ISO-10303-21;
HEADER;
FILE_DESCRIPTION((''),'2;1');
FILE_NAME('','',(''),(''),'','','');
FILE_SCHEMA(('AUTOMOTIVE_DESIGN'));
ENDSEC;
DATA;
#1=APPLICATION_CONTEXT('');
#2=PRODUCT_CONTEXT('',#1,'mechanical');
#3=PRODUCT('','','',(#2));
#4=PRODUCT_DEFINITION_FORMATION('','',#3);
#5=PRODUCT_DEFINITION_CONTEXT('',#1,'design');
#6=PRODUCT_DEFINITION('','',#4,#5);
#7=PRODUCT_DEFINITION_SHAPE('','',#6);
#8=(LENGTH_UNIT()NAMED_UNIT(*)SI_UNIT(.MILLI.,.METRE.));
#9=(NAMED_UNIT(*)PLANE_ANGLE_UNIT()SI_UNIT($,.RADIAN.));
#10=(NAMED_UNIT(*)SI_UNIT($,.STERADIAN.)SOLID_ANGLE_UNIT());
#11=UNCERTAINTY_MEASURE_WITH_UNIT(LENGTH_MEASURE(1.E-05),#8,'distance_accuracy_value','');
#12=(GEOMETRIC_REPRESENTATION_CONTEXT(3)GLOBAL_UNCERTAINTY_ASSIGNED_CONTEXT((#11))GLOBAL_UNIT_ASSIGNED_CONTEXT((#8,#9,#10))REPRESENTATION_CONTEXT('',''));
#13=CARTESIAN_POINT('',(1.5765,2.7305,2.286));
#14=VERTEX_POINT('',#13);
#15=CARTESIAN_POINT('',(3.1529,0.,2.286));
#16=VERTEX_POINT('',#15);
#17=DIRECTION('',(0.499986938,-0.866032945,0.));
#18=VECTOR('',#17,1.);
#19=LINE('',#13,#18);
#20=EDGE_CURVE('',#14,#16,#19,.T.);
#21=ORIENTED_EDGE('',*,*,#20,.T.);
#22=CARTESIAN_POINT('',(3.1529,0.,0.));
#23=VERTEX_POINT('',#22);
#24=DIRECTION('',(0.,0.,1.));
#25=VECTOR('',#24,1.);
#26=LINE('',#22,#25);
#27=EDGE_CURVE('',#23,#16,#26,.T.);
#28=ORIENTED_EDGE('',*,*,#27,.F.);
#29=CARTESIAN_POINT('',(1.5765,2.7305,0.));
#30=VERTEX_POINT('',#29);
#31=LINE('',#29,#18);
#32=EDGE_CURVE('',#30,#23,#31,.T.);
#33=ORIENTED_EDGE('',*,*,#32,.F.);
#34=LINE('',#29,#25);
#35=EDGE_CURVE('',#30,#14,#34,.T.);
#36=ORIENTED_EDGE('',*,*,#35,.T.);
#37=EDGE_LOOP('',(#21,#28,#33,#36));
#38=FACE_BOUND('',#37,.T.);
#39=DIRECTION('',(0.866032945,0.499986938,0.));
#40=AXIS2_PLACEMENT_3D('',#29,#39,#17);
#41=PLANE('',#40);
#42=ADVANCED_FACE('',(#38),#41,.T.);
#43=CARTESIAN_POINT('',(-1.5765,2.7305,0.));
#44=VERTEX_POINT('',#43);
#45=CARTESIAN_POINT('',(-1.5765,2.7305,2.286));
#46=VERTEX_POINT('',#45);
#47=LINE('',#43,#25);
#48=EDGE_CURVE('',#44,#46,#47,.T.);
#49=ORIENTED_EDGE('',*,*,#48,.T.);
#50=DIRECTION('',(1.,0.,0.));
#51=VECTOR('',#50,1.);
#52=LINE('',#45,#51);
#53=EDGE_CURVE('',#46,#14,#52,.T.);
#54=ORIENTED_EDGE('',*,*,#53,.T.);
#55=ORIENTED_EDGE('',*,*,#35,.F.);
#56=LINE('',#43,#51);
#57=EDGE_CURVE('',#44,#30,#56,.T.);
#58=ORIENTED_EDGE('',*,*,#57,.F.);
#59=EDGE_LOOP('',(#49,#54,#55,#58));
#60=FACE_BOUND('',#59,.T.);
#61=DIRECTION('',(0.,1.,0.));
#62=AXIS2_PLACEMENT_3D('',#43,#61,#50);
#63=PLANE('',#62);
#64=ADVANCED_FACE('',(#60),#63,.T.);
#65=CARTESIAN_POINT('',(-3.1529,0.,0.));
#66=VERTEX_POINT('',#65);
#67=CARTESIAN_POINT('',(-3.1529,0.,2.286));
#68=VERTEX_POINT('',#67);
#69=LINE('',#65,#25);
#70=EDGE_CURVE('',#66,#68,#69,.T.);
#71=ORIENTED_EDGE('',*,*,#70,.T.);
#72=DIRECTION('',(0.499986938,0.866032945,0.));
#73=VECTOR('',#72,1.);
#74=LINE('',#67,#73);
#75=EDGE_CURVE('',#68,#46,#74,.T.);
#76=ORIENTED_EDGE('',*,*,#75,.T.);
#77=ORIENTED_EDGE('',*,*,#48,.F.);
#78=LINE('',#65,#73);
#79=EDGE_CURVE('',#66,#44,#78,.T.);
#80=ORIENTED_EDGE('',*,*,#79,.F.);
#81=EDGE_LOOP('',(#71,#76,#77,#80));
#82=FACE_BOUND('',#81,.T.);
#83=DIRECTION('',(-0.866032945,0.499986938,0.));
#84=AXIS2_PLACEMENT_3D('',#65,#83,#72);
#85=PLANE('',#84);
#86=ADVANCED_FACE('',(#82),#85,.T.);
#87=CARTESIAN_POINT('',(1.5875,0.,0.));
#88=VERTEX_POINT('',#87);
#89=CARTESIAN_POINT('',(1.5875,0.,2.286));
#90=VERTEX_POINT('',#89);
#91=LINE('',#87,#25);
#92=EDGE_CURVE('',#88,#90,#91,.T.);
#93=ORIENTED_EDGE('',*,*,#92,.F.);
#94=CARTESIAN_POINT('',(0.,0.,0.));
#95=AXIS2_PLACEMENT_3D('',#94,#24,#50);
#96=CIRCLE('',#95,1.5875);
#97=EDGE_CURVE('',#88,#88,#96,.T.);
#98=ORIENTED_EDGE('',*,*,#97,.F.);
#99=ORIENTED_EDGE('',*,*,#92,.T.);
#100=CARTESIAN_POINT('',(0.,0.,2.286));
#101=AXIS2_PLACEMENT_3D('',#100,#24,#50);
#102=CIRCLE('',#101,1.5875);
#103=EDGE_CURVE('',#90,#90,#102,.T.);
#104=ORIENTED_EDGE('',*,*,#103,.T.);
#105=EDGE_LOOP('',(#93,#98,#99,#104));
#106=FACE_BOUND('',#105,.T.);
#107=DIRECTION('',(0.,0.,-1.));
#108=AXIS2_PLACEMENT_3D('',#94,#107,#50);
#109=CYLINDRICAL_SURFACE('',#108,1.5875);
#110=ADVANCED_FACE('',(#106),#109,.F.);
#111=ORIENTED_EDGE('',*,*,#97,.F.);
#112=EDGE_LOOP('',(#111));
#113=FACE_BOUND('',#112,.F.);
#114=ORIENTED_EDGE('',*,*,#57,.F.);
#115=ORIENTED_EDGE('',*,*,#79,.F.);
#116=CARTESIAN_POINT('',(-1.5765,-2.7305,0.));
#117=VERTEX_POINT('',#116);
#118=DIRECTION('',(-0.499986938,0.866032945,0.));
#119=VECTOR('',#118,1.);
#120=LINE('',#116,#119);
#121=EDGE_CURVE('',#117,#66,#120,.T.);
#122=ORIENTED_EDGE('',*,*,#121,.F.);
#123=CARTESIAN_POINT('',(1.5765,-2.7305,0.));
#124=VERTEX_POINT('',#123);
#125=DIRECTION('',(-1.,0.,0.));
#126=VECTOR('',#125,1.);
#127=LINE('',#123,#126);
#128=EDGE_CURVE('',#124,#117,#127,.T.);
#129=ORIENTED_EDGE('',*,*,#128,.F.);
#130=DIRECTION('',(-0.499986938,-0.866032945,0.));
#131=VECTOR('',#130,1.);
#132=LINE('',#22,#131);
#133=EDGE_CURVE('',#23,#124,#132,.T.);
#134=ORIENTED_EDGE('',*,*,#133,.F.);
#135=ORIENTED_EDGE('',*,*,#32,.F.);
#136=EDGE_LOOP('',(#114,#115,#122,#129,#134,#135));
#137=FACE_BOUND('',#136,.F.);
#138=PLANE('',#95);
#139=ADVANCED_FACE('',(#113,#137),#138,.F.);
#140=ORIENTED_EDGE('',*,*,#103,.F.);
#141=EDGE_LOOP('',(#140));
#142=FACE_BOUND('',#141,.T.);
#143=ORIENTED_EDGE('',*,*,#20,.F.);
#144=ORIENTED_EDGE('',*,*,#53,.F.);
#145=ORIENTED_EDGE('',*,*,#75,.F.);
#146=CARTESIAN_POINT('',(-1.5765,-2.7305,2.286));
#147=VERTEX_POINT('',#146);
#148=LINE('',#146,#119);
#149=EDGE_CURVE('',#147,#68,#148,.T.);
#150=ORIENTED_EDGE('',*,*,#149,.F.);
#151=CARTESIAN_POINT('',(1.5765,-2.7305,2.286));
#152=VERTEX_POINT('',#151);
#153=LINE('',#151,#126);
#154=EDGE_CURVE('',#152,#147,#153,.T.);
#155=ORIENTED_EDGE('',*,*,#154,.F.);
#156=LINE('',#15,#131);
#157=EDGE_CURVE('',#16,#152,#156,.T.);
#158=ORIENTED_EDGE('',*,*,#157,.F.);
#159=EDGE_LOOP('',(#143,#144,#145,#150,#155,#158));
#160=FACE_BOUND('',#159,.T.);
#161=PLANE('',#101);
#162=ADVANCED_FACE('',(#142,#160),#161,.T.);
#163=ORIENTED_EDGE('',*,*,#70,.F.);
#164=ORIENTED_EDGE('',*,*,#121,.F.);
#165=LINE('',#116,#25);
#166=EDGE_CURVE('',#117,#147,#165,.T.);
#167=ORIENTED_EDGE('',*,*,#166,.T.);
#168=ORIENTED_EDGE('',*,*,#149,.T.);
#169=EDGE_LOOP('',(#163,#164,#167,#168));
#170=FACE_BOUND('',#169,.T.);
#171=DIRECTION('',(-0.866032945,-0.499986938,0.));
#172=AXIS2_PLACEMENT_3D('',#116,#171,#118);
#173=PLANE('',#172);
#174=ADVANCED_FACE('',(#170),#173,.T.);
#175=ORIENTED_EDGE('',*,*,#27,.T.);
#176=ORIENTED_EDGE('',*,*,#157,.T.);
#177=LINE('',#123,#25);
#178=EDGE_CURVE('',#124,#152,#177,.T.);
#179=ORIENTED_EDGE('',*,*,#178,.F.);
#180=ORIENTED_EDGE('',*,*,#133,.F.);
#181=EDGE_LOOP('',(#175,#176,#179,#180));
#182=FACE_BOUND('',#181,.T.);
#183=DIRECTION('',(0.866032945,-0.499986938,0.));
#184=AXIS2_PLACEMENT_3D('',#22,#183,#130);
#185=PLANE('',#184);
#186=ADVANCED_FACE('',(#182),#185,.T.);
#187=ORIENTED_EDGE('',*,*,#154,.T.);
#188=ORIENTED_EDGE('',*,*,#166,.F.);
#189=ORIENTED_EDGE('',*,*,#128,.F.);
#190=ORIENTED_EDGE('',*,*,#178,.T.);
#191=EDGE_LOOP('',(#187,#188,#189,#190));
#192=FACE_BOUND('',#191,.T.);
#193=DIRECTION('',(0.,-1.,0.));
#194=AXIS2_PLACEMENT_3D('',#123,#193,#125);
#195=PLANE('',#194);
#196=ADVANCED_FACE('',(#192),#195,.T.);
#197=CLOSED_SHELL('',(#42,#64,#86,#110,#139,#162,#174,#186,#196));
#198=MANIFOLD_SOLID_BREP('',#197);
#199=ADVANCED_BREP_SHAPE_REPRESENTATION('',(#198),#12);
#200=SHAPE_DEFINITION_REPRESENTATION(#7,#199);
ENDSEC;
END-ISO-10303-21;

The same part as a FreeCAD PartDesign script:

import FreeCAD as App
import Part
import Sketcher
from FreeCAD import Vector
Q = App.Units.Quantity

doc = App.newDocument("Part")
body = doc.addObject("PartDesign::Body", "Body")

sketch1 = doc.addObject("Sketcher::SketchObject", "Sketch")
body.addObject(sketch1)
sketch1.AttachmentSupport = (doc.XY_Plane, [""])
sketch1.MapMode = "FlatFace"
sketch1.addGeometry([
    Part.LineSegment(Vector(-1.6, 2.7, 0), Vector(-3.2, 0, 0)),
    Part.LineSegment(Vector(-3.2, 0, 0), Vector(-1.6, -2.7, 0)),
    Part.LineSegment(Vector(-1.6, -2.7, 0), Vector(1.6, -2.7, 0)),
    Part.LineSegment(Vector(1.6, -2.7, 0), Vector(3.2, 0, 0)),
    Part.LineSegment(Vector(3.2, 0, 0), Vector(1.6, 2.7, 0)),
    Part.LineSegment(Vector(1.6, 2.7, 0), Vector(-1.6, 2.7, 0)),
    Part.Circle(Vector(0, 0, 0), Vector(0, 0, 1), 1.6),
], False)
sketch1.addConstraint([
    Sketcher.Constraint("Coincident", 0, 2, 1, 1),
    Sketcher.Constraint("Coincident", 1, 2, 2, 1),
    Sketcher.Constraint("Coincident", 2, 2, 3, 1),
    Sketcher.Constraint("Coincident", 3, 2, 4, 1),
    Sketcher.Constraint("Coincident", 4, 2, 5, 1),
    Sketcher.Constraint("Coincident", 5, 2, 0, 1),
    Sketcher.Constraint("Horizontal", 2),
    Sketcher.Constraint("Horizontal", 5),
    Sketcher.Constraint("Coincident", 6, 3, -1, 1),
    Sketcher.Constraint("Symmetric", 0, 2, 3, 2, -1, 1),
    Sketcher.Constraint("Symmetric", 1, 2, 4, 2, -1, 1),
    Sketcher.Constraint("PointOnObject", 0, 2, -1),
    Sketcher.Constraint("Parallel", 0, 3),
    Sketcher.Constraint("Vertical", 2, 2, 4, 2),
    Sketcher.Constraint("Diameter", 6, Q("0.125 in")),
    Sketcher.Constraint("Angle", 0, Q("-119.9991 deg")),
    Sketcher.Constraint("DistanceY", 2, 2, 4, 2, Q("0.215 in")),
    Sketcher.Constraint("DistanceX", 2, 1, 2, 2, Q("3.153 mm")),
])
pad1 = doc.addObject("PartDesign::Pad", "Pad")
body.addObject(pad1)
pad1.Profile = sketch1
pad1.Length = Q("0.09 in")

doc.recompute()
